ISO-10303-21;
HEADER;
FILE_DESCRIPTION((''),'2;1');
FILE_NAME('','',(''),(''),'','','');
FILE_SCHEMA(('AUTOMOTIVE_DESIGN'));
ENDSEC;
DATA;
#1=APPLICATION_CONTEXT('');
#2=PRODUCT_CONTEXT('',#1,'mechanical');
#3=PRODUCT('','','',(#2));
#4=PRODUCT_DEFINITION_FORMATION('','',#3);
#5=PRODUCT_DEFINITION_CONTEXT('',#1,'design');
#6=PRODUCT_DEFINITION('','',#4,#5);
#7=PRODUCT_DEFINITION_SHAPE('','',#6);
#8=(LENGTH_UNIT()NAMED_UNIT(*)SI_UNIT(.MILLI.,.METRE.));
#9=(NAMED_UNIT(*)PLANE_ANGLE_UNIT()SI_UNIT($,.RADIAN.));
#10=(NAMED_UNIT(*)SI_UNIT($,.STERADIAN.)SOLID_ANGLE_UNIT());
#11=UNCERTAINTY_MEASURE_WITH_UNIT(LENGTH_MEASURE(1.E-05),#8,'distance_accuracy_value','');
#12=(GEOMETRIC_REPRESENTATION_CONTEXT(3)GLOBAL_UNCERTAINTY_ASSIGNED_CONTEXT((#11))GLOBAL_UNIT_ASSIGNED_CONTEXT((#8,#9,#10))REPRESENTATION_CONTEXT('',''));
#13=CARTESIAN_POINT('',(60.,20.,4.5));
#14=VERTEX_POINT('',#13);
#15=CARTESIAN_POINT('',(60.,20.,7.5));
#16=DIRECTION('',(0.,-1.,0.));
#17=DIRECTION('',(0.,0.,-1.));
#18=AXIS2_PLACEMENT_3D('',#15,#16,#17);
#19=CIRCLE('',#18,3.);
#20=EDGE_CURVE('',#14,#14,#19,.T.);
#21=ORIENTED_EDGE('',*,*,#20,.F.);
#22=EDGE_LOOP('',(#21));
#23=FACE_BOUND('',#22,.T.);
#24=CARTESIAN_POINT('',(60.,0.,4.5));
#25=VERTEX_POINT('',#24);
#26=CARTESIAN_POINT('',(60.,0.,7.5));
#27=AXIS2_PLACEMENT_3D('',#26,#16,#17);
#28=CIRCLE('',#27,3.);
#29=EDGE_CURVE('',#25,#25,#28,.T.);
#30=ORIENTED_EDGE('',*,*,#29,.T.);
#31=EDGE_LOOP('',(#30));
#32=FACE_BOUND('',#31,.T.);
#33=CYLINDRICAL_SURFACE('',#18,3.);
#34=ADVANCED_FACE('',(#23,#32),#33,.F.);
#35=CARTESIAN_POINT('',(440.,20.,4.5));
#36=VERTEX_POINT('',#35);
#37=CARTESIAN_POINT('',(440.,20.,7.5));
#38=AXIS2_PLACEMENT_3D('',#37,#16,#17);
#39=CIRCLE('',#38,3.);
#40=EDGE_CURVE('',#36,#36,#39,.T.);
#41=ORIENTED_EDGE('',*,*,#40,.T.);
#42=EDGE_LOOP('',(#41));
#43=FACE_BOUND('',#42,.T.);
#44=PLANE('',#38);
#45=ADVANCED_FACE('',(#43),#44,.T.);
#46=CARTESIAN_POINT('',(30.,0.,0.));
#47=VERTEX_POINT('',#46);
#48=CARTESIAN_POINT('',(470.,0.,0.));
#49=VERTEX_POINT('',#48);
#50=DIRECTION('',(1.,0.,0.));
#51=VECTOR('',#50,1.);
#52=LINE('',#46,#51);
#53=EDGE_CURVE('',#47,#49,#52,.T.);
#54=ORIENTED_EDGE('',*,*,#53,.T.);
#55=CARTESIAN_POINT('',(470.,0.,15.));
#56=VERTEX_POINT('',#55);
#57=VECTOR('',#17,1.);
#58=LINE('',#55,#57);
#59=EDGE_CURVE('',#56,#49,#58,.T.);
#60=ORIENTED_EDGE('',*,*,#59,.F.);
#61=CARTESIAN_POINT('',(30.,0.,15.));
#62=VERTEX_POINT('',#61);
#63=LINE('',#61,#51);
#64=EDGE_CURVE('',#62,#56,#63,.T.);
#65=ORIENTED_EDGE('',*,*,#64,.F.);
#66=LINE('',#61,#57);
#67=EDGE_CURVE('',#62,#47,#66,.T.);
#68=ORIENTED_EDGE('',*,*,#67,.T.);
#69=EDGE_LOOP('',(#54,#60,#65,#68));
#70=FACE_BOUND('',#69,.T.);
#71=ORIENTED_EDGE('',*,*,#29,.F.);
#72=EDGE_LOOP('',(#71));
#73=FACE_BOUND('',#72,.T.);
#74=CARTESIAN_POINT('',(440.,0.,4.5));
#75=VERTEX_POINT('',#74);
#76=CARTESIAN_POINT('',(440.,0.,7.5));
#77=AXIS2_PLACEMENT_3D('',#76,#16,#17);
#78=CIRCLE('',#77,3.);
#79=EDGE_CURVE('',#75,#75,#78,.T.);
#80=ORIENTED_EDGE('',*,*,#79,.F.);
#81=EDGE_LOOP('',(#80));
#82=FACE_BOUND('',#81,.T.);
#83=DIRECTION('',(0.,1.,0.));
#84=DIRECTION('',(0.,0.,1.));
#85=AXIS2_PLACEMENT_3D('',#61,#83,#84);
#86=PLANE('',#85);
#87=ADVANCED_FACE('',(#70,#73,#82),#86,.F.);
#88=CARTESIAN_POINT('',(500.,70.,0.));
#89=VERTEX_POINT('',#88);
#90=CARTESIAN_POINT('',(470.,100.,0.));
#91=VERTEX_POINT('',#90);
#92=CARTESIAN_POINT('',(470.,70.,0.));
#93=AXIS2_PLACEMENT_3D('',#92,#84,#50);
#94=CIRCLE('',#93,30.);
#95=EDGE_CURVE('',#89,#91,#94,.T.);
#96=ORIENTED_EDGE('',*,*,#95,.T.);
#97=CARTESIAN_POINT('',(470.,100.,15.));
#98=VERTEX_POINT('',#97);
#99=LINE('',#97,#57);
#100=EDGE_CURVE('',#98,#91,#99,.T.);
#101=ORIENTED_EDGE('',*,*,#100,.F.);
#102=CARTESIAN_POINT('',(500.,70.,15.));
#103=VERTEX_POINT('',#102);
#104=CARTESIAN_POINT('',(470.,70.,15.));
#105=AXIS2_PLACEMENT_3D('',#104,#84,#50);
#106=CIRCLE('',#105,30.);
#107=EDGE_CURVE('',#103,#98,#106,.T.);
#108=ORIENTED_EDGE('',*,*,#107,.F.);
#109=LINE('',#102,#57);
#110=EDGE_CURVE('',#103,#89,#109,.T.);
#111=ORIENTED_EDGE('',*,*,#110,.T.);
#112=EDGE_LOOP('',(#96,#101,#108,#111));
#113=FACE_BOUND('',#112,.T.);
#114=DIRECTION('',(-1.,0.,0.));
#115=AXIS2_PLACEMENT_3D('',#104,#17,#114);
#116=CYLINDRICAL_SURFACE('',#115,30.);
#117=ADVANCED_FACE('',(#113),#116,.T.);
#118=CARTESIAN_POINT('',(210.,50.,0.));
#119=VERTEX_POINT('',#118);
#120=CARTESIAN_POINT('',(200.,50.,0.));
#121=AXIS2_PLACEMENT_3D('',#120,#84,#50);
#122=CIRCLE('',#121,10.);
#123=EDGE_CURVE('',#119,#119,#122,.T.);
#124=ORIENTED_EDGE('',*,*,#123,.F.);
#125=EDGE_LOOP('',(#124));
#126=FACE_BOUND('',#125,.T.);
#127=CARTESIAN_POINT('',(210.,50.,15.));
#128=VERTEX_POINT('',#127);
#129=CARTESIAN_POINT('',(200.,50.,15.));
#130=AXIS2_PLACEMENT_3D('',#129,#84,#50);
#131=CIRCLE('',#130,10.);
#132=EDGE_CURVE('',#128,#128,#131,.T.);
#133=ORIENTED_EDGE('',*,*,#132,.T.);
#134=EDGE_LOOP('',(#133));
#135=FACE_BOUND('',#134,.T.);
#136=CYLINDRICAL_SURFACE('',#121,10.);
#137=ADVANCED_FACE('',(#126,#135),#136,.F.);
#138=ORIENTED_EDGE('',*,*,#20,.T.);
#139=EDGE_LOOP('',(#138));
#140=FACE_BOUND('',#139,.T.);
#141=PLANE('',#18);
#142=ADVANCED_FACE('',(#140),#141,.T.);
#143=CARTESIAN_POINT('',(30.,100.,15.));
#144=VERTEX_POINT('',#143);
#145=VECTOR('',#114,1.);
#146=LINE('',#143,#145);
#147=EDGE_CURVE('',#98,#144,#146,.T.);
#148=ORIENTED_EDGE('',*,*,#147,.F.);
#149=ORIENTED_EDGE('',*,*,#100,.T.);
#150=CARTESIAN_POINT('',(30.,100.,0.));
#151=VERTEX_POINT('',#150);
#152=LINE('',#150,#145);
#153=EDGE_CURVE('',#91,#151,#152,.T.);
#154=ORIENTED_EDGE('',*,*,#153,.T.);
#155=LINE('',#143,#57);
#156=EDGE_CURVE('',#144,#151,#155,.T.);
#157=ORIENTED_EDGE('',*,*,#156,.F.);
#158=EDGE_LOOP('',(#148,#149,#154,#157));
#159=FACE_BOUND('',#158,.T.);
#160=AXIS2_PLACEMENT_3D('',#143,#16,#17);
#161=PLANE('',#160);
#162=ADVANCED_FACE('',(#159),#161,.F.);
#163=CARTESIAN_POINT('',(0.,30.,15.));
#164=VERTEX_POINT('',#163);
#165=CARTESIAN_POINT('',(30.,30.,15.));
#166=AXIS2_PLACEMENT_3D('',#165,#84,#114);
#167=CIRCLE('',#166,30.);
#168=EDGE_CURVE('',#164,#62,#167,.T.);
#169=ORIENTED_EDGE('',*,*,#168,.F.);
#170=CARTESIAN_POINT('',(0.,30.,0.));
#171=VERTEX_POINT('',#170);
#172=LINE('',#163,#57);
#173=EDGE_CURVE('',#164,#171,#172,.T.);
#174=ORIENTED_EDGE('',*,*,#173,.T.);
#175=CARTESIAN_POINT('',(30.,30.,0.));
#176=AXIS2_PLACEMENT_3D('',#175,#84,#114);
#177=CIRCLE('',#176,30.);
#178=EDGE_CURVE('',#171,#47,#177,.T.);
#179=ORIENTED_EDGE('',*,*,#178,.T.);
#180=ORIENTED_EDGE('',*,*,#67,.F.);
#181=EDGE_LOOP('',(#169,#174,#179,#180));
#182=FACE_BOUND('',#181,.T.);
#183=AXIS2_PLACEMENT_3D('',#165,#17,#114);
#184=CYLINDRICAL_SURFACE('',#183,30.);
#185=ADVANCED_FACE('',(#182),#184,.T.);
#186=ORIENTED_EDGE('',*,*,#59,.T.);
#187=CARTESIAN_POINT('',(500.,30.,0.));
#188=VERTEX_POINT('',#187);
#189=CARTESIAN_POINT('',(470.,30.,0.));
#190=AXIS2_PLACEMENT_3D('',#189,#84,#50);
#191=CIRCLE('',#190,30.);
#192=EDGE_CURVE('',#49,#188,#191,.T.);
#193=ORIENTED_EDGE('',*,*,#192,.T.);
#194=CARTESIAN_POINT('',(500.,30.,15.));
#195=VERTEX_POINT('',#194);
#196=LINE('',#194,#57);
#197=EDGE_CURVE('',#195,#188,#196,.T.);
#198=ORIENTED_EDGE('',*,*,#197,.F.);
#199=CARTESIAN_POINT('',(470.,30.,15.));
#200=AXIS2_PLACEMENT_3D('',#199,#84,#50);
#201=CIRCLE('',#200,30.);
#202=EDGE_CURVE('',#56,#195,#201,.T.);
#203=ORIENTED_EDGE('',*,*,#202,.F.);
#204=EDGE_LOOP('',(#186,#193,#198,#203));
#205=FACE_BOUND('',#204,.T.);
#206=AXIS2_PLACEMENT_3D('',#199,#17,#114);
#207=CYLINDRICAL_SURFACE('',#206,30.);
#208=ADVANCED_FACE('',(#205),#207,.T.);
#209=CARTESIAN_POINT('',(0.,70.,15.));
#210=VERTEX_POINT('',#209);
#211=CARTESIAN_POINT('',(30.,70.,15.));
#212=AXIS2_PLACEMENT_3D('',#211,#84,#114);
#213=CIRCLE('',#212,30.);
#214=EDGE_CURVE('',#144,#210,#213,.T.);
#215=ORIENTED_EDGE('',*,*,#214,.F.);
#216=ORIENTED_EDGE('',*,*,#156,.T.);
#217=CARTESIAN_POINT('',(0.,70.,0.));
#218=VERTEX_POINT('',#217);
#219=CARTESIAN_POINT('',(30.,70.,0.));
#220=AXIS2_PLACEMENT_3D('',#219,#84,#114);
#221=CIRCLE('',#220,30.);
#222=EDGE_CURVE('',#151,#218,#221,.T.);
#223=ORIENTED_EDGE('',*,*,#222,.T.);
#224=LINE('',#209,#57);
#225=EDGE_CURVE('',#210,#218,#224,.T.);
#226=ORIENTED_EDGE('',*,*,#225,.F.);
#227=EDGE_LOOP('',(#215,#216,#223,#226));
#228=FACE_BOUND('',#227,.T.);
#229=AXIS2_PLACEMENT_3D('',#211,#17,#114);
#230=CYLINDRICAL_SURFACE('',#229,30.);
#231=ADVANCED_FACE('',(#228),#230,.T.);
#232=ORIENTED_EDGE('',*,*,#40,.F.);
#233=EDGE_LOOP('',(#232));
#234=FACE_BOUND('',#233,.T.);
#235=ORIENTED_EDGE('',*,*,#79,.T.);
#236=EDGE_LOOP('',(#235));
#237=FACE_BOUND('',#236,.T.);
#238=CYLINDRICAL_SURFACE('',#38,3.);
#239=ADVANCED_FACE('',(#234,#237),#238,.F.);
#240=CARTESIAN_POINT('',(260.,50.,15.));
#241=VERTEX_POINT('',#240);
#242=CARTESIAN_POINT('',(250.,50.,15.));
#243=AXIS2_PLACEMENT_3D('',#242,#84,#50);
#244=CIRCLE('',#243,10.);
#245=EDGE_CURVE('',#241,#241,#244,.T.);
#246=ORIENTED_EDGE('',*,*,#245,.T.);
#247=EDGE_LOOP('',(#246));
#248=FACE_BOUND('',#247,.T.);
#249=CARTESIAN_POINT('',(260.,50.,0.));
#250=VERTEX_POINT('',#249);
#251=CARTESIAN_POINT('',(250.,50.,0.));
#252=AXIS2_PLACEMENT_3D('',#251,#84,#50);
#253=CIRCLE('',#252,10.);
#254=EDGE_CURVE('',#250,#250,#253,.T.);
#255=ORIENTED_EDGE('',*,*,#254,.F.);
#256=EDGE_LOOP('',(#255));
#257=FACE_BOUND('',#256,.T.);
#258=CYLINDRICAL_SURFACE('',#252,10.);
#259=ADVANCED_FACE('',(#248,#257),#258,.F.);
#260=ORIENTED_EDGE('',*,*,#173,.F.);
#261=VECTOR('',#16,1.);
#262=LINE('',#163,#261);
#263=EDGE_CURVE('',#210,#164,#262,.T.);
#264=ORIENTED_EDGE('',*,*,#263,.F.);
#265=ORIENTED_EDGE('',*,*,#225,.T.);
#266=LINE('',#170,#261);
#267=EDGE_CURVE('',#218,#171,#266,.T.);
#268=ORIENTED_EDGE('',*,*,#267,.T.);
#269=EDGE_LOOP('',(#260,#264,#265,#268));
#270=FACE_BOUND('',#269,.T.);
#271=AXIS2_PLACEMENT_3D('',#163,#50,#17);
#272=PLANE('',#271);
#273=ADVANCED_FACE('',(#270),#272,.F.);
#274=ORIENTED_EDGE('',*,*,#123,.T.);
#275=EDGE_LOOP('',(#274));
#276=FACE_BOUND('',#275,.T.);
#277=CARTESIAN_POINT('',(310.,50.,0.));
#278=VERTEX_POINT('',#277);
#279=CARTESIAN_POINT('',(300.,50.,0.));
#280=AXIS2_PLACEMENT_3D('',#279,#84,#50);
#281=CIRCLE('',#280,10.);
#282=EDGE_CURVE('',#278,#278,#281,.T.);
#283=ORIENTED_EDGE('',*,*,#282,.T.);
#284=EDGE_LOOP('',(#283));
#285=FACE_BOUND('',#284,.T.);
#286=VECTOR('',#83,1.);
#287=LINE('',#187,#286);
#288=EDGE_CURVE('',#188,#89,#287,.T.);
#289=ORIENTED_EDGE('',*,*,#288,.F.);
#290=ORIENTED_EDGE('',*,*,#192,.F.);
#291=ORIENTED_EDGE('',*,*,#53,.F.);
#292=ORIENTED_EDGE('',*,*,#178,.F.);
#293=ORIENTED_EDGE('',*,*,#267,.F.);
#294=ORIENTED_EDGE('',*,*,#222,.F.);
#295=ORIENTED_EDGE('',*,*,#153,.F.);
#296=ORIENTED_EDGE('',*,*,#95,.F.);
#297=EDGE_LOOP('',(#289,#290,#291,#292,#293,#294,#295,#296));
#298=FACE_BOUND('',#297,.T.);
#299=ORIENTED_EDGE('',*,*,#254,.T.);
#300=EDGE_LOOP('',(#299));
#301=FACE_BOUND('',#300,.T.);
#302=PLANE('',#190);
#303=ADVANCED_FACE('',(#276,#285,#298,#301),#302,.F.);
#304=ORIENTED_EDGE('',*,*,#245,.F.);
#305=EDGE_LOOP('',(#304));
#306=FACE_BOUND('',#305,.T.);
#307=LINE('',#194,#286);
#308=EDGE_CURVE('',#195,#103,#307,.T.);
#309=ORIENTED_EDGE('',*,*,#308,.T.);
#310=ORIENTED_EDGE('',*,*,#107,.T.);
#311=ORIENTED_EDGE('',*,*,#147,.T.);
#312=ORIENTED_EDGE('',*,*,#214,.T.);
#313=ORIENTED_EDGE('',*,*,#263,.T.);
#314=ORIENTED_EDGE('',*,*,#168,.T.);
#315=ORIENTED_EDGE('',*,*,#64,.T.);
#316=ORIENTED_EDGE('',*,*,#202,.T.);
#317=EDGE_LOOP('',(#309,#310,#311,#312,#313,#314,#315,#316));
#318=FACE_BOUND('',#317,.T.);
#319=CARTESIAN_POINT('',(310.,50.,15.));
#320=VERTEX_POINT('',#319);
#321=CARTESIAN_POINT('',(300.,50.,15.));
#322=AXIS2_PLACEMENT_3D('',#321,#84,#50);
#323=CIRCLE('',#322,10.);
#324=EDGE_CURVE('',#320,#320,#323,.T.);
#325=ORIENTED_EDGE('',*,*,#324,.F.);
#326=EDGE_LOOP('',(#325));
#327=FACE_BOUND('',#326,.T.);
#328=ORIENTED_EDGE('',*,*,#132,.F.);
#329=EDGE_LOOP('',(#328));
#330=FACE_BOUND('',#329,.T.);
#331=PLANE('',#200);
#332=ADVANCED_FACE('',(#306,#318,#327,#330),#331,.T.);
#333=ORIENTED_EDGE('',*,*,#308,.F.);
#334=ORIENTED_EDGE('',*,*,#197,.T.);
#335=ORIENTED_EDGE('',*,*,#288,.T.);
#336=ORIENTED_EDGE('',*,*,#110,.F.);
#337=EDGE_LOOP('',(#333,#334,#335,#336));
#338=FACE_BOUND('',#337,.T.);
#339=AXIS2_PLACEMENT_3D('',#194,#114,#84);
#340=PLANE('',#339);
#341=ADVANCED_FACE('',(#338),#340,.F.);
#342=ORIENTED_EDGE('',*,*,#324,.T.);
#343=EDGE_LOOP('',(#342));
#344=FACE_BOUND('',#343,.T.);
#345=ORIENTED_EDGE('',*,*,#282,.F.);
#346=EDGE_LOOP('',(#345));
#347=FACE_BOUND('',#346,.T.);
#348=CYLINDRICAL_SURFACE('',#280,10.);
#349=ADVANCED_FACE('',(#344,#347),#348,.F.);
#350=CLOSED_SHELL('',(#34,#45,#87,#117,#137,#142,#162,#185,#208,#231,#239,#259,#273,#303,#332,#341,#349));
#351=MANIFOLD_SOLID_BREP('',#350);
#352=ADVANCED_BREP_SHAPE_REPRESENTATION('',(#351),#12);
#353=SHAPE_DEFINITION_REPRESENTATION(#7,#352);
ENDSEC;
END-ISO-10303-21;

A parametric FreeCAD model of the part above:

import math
import FreeCAD as App
import Part
import Sketcher
Q = App.Units.Quantity

doc = App.newDocument("Part")
params = doc.addObject("Spreadsheet::Sheet", "Params")
for row, (alias, value) in enumerate([
    ("sketch1_radius", "30 mm"),
    ("sketch1_width", "440 mm"),
    ("sketch1_height", "40 mm"),
    ("pad1_length", "15 mm"),
    ("sketch2_diameter", "20 mm"),
    ("sketch3_diameter", "6 mm"),
    ("pocket2_length", "20 mm"),
], start=1):
    params.set(f"A{row}", alias)
    params.set(f"B{row}", "=" + value)
    params.setAlias(f"B{row}", alias)

body = doc.addObject("PartDesign::Body", "Body")

sketch1 = body.newObject("Sketcher::SketchObject", "Sketch")
sketch1.AttachmentSupport = (doc.getObject("XY_Plane"), [""])
sketch1.MapMode = "FlatFace"
sketch1.addGeometry([
    Part.LineSegment(App.Vector(30, 0, 0), App.Vector(470, 0, 0)),
    Part.ArcOfCircle(Part.Circle(App.Vector(470, 30, 0), App.Vector(0, 0, 1), 30), math.radians(-90), math.radians(0)),
    Part.LineSegment(App.Vector(500, 30, 0), App.Vector(500, 70, 0)),
    Part.ArcOfCircle(Part.Circle(App.Vector(470, 70, 0), App.Vector(0, 0, 1), 30), math.radians(0), math.radians(90)),
    Part.LineSegment(App.Vector(470, 100, 0), App.Vector(30, 100, 0)),
    Part.ArcOfCircle(Part.Circle(App.Vector(30, 70, 0), App.Vector(0, 0, 1), 30), math.radians(90), math.radians(180)),
    Part.LineSegment(App.Vector(0, 70, 0), App.Vector(0, 30, 0)),
    Part.ArcOfCircle(Part.Circle(App.Vector(30, 30, 0), App.Vector(0, 0, 1), 30), math.radians(180), math.radians(270)),
], False)
sketch1.addConstraint([
    Sketcher.Constraint("Tangent", 0, 2, 1, 1),
    Sketcher.Constraint("Tangent", 1, 2, 2, 1),
    Sketcher.Constraint("Tangent", 2, 2, 3, 1),
    Sketcher.Constraint("Tangent", 3, 2, 4, 1),
    Sketcher.Constraint("Tangent", 4, 2, 5, 1),
    Sketcher.Constraint("Tangent", 5, 2, 6, 1),
    Sketcher.Constraint("Tangent", 6, 2, 7, 1),
    Sketcher.Constraint("Tangent", 7, 2, 0, 1),
    Sketcher.Constraint("Horizontal", 0),
    Sketcher.Constraint("Vertical", 2),
    Sketcher.Constraint("Horizontal", 4),
    Sketcher.Constraint("Vertical", 6),
    Sketcher.Constraint("Equal", 1, 3),
    Sketcher.Constraint("Equal", 3, 5),
    Sketcher.Constraint("Equal", 5, 7),
    Sketcher.Constraint("PointOnObject", 0, 2, -1),
    Sketcher.Constraint("PointOnObject", 5, 2, -2),
    Sketcher.Constraint("Radius", 1, Q("30 mm")),
    Sketcher.Constraint("DistanceX", 0, 1, 0, 2, Q("440 mm")),
    Sketcher.Constraint("DistanceY", 2, 1, 2, 2, Q("40 mm")),
])
sketch1.setExpression("Constraints[17]", "Params.sketch1_radius")
sketch1.setExpression("Constraints[18]", "Params.sketch1_width")
sketch1.setExpression("Constraints[19]", "Params.sketch1_height")
pad1 = body.newObject("PartDesign::Pad", "Pad")
pad1.Profile = sketch1
pad1.setExpression("Length", "Params.pad1_length")

sketch2 = body.newObject("Sketcher::SketchObject", "Sketch001")
sketch2.AttachmentSupport = (doc.getObject("XY_Plane"), [""])
sketch2.MapMode = "FlatFace"
sketch2.AttachmentOffset = App.Placement(App.Vector(0, 0, 15), App.Rotation())
sketch2.addGeometry([
    Part.Circle(App.Vector(200, 50, 0), App.Vector(0, 0, 1), 10),
    Part.Circle(App.Vector(250, 50, 0), App.Vector(0, 0, 1), 10),
    Part.Circle(App.Vector(300, 50, 0), App.Vector(0, 0, 1), 10),
], False)
sketch2.addConstraint([
    Sketcher.Constraint("Equal", 0, 1),
    Sketcher.Constraint("Equal", 1, 2),
    Sketcher.Constraint("Horizontal", 0, 3, 1, 3),
    Sketcher.Constraint("Horizontal", 1, 3, 2, 3),
    Sketcher.Constraint("Diameter", 0, Q("20 mm")),
    Sketcher.Constraint("DistanceX", -1, 1, 0, 3, Q("200 mm")),
    Sketcher.Constraint("DistanceY", -1, 1, 0, 3, Q("50 mm")),
    Sketcher.Constraint("DistanceX", -1, 1, 1, 3, Q("250 mm")),
    Sketcher.Constraint("DistanceX", -1, 1, 2, 3, Q("300 mm")),
])
sketch2.setExpression("Constraints[4]", "Params.sketch2_diameter")
pocket1 = body.newObject("PartDesign::Pocket", "Pocket")
pocket1.Profile = sketch2
pocket1.Type = "ThroughAll"

sketch3 = body.newObject("Sketcher::SketchObject", "Sketch002")
sketch3.AttachmentSupport = (doc.getObject("XZ_Plane"), [""])
sketch3.MapMode = "FlatFace"
sketch3.addGeometry([
    Part.Circle(App.Vector(60, 7.5, 0), App.Vector(0, 0, 1), 3),
    Part.Circle(App.Vector(440, 7.5, 0), App.Vector(0, 0, 1), 3),
], False)
sketch3.addConstraint([
    Sketcher.Constraint("Equal", 0, 1),
    Sketcher.Constraint("Horizontal", 0, 3, 1, 3),
    Sketcher.Constraint("Diameter", 0, Q("6 mm")),
    Sketcher.Constraint("DistanceX", -1, 1, 0, 3, Q("60 mm")),
    Sketcher.Constraint("DistanceX", -1, 1, 1, 3, Q("440 mm")),
    Sketcher.Constraint("DistanceY", -1, 1, 0, 3, Q("7.5 mm")),
])
sketch3.setExpression("Constraints[2]", "Params.sketch3_diameter")
pocket2 = body.newObject("PartDesign::Pocket", "Pocket001")
pocket2.Profile = sketch3
pocket2.setExpression("Length", "Params.pocket2_length")

doc.recompute()
